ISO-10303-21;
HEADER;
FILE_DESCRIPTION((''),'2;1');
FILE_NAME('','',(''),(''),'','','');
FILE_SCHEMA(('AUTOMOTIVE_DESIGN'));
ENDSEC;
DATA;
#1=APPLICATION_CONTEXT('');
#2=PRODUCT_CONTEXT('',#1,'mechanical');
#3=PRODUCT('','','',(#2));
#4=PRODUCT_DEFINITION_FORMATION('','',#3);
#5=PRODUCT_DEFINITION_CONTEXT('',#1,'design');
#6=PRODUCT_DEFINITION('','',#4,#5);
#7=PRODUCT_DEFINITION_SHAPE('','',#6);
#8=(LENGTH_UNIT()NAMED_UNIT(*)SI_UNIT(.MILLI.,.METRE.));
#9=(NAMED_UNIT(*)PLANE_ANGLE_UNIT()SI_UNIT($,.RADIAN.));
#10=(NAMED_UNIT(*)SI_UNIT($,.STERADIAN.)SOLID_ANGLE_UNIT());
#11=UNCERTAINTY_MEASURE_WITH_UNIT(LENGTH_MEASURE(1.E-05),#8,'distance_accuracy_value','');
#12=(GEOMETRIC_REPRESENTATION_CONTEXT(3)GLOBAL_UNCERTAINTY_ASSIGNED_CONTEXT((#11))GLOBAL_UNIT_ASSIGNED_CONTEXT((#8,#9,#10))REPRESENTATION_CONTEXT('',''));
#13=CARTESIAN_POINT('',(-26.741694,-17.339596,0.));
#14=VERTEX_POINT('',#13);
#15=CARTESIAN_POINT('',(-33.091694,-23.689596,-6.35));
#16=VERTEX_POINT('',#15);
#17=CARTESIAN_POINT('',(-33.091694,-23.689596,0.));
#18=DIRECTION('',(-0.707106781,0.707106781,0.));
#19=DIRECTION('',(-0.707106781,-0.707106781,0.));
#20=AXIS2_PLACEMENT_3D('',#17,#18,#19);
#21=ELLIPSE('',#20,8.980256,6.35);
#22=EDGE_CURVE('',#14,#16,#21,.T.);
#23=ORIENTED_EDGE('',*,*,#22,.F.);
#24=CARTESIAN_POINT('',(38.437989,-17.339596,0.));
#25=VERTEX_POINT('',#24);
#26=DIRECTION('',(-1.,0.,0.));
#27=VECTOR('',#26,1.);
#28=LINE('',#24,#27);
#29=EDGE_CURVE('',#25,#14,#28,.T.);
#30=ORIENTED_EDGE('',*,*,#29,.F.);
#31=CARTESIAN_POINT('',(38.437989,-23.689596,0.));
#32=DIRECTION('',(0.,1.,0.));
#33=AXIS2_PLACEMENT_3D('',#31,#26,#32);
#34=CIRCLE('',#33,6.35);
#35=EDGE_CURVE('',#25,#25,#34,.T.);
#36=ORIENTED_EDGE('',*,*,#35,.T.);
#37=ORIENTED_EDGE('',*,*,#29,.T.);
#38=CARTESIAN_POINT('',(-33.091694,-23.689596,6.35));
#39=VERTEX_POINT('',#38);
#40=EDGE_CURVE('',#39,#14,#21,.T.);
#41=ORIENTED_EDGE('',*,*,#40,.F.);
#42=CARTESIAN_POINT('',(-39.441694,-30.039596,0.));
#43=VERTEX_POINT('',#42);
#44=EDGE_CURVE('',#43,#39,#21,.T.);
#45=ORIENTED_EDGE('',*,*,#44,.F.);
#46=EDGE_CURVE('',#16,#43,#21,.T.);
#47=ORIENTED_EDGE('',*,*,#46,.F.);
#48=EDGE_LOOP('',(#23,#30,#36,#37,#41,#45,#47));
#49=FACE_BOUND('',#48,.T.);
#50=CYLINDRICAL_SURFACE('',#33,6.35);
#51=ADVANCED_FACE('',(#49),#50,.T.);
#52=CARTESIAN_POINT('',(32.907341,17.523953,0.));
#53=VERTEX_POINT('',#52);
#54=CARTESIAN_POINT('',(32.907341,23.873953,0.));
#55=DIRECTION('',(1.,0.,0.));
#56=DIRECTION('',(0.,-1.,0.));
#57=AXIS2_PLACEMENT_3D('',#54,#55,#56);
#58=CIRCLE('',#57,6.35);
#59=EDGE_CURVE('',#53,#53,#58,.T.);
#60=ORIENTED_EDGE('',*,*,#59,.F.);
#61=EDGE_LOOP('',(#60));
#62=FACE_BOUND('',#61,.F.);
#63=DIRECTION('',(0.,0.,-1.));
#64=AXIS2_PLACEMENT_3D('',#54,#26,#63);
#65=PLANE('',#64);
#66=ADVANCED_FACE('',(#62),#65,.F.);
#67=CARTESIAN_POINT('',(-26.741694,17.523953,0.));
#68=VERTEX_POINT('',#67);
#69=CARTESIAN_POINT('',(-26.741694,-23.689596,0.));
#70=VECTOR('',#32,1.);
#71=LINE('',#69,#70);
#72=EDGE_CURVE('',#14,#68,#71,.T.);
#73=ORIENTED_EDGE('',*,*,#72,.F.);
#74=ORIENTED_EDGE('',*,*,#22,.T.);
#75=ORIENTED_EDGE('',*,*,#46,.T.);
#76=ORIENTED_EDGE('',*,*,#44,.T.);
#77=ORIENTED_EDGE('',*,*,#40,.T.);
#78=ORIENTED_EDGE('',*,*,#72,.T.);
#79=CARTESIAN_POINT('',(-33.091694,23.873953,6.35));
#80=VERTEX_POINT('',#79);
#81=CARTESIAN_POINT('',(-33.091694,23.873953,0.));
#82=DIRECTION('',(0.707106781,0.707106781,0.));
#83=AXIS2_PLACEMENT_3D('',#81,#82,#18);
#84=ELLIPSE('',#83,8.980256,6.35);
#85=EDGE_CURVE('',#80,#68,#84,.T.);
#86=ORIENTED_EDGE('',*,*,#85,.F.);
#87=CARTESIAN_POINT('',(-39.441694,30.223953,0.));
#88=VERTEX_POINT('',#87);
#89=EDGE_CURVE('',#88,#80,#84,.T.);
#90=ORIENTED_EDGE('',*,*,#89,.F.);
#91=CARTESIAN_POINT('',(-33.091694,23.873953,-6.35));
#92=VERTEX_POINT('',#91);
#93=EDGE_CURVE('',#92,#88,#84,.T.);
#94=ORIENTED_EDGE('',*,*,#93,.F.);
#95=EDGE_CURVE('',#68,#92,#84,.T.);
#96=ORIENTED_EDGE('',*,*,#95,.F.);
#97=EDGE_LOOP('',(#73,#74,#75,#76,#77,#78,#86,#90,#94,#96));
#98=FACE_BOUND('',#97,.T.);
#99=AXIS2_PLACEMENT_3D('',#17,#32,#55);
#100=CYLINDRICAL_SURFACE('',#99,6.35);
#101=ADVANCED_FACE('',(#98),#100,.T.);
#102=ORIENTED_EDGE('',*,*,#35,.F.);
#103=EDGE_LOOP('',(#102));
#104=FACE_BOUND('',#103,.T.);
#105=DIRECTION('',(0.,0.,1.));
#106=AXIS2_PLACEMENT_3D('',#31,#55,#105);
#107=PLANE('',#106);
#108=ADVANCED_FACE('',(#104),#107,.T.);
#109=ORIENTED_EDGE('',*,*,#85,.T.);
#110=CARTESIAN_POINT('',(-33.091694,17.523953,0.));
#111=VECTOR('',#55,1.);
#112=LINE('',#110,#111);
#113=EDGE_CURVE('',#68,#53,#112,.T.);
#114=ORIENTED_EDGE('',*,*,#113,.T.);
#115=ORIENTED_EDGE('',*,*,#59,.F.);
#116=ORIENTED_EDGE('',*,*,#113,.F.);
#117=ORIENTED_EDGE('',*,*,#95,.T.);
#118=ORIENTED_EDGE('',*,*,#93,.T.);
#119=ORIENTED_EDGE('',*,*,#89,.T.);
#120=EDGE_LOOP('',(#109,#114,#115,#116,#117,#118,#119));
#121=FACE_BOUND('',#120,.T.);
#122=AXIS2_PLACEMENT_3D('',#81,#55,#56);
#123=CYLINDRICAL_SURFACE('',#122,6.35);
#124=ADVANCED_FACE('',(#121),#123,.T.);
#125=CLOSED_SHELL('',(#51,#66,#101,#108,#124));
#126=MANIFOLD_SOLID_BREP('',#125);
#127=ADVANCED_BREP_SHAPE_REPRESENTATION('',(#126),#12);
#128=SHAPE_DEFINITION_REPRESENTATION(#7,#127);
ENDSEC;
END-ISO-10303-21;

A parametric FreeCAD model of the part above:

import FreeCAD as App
import Part
import Sketcher
Q = App.Units.Quantity

doc = App.newDocument("Part")
params = doc.addObject("Spreadsheet::Sheet", "Params")
for row, (alias, value) in enumerate([
    ("sketch1_diameter", "0.5 in"),
], start=1):
    params.set(f"A{row}", alias)
    params.set(f"B{row}", "=" + value)
    params.setAlias(f"B{row}", alias)

body = doc.addObject("PartDesign::Body", "Body")

sketch1 = doc.addObject("Sketcher::SketchObject", "Sketch")
body.addObject(sketch1)
sketch1.AttachmentSupport = (doc.YZ_Plane, [""])
sketch1.MapMode = "FlatFace"
sketch1.AttachmentOffset = App.Placement(App.Vector(0, 0, 38.437989), App.Rotation())
sketch1.addGeometry(Part.Circle(App.Vector(-24, 0, 0), App.Vector(0, 0, 1), 6), False)
sketch1.addConstraint(Sketcher.Constraint("PointOnObject", 0, 3, -1))
sketch1.addConstraint(Sketcher.Constraint("Diameter", 0, Q("0.5 in")))
sketch1.addConstraint(Sketcher.Constraint("DistanceX", 0, 3, -1, 1, Q("23.689596 mm")))
sketch1.setExpression("Constraints[1]", "Params.sketch1_diameter")

sketch2 = doc.addObject("Sketcher::SketchObject", "Sketch001")
body.addObject(sketch2)
sketch2.AttachmentSupport = (doc.XY_Plane, [""])
sketch2.MapMode = "FlatFace"
sketch2.addGeometry(Part.LineSegment(App.Vector(38, -24, 0), App.Vector(-33, -24, 0)), False)
sketch2.addGeometry(Part.LineSegment(App.Vector(-33, -24, 0), App.Vector(-33, 24, 0)), False)
sketch2.addGeometry(Part.LineSegment(App.Vector(-33, 24, 0), App.Vector(33, 24, 0)), False)
sketch2.addConstraint(Sketcher.Constraint("Coincident", 0, 2, 1, 1))
sketch2.addConstraint(Sketcher.Constraint("Coincident", 1, 2, 2, 1))
sketch2.addConstraint(Sketcher.Constraint("Horizontal", 0))
sketch2.addConstraint(Sketcher.Constraint("Vertical", 1))
sketch2.addConstraint(Sketcher.Constraint("Horizontal", 2))
sketch2.addConstraint(Sketcher.Constraint("DistanceY", 1, 1, 1, 2, Q("47.563549 mm")))
sketch2.addConstraint(Sketcher.Constraint("DistanceX", 0, 2, 0, 1, Q("71.529683 mm")))
sketch2.addConstraint(Sketcher.Constraint("DistanceX", 2, 1, 2, 2, Q("65.999035 mm")))
sketch2.addConstraint(Sketcher.Constraint("DistanceX", -1, 1, 0, 1, Q("38.437989 mm")))
sketch2.addConstraint(Sketcher.Constraint("DistanceY", 0, 1, -1, 1, Q("23.689596 mm")))
doc.recompute()

additivepipe = doc.addObject("PartDesign::AdditivePipe", "AdditivePipe")
body.addObject(additivepipe)
additivepipe.Profile = sketch1
additivepipe.Spine = (sketch2, ["Edge1", "Edge2", "Edge3"])
additivepipe.Transition = "Right corner"

doc.recompute()
